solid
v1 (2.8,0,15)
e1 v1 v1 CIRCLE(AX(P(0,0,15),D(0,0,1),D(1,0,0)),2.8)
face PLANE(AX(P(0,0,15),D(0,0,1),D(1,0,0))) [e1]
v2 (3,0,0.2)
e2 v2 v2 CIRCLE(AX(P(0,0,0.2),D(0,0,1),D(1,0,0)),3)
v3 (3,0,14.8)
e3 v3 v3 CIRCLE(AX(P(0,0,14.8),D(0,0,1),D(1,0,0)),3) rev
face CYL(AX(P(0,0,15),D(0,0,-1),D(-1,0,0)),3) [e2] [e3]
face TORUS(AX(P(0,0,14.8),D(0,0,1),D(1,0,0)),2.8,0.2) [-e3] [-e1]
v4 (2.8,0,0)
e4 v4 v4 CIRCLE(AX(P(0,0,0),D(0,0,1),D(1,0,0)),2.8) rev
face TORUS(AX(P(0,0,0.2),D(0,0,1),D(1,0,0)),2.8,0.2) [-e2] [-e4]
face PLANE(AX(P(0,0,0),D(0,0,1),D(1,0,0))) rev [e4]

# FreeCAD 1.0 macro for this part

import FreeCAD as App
import Part
import Sketcher

V = App.Vector


def edges_at(feature, points):
    """Names of the edges that pass closest to the given points."""
    edges = feature.Shape.Edges
    near = lambda p: min(range(len(edges)), key=lambda i: edges[i].distToShape(Part.Vertex(*p))[0])
    return sorted({f"Edge{near(p) + 1}" for p in points})

doc = App.newDocument("Part")
body = doc.addObject("PartDesign::Body", "Body")

# Sketch on XY plane
sketch1 = doc.addObject("Sketcher::SketchObject", "Sketch")
body.addObject(sketch1)
sketch1.AttachmentSupport = (doc.XY_Plane, [""])
sketch1.MapMode = "FlatFace"
sketch1.addGeometry(Part.Circle(V(0, 0, 0), V(0, 0, 1), 3), False)
sketch1.addConstraint(Sketcher.Constraint("Coincident", 0, 3, -1, 1))
sketch1.addConstraint(Sketcher.Constraint("Diameter", 0, 6.0))
pad1 = doc.addObject("PartDesign::Pad", "Pad")
body.addObject(pad1)
pad1.Profile = sketch1
pad1.Length = 15
doc.recompute()

fillet = doc.addObject("PartDesign::Fillet", "Fillet")
body.addObject(fillet)
fillet.Base = (pad1, edges_at(pad1, [(-3, 0, 0), (-3, 0, 15)]))
fillet.Radius = 0.2

doc.recompute()
